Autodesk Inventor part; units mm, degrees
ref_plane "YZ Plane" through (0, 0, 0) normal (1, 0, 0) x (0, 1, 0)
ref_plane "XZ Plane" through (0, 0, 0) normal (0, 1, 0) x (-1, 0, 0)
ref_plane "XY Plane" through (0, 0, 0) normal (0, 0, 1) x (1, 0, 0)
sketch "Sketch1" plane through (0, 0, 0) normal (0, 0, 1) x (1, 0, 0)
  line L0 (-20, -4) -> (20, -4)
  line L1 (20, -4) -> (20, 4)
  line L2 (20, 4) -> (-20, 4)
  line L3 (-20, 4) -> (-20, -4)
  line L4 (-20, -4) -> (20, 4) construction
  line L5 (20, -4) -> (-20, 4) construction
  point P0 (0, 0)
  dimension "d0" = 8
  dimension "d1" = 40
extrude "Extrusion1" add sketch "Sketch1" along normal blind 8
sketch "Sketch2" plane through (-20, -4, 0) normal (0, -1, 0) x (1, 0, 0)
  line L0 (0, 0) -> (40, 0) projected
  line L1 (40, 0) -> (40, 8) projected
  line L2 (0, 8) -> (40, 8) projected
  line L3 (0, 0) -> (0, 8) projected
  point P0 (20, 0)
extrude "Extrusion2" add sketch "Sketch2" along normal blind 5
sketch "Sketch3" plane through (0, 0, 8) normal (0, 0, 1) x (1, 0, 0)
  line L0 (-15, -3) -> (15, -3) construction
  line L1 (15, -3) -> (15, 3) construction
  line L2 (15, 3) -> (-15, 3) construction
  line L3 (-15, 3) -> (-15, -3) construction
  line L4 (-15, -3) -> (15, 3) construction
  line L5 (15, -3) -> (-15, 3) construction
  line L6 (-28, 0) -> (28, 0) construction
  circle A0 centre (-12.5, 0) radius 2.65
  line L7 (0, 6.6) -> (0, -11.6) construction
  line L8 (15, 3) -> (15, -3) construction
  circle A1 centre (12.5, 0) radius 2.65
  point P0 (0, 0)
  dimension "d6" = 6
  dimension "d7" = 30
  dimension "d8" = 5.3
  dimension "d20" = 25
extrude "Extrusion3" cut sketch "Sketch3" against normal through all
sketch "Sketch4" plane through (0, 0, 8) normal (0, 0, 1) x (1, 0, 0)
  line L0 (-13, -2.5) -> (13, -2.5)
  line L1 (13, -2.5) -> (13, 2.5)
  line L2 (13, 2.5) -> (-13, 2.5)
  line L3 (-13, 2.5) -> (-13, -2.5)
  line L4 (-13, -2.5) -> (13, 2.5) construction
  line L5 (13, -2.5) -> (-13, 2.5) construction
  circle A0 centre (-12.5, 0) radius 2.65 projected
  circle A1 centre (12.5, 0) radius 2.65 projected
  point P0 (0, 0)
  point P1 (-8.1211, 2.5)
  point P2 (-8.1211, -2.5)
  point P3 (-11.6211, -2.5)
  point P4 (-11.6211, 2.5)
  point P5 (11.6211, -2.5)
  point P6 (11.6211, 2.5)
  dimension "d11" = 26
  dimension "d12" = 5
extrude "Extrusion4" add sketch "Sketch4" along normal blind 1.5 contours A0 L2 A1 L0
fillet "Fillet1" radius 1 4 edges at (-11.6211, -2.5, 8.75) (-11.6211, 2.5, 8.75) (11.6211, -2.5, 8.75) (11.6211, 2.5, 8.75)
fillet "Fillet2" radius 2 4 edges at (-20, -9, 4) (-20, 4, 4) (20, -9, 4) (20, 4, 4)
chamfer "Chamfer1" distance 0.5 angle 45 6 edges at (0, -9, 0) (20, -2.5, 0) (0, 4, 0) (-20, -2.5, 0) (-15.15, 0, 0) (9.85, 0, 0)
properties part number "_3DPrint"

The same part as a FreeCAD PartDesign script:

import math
import FreeCAD as App
import Part
import Sketcher
from FreeCAD import Vector
Q = App.Units.Quantity


def edges_at(feature, points):
    """Names of the edges that pass closest to the given points."""
    edges = feature.Shape.Edges
    near = lambda p: min(range(len(edges)), key=lambda i: edges[i].distToShape(Part.Vertex(*p))[0])
    return sorted({f"Edge{near(p) + 1}" for p in points})


def add_polygon(sketch, points):
    """Adds a closed chain of lines whose ends are joined by coincident constraints."""
    first, n = sketch.GeometryCount, len(points)
    for a, b in zip(points, points[1:] + points[:1]):
        sketch.addGeometry(Part.LineSegment(App.Vector(*a, 0), App.Vector(*b, 0)), False)
    for i in range(n):
        sketch.addConstraint(Sketcher.Constraint("Coincident", first + i, 2, first + (i + 1) % n, 1))

doc = App.newDocument("Part")
body = doc.addObject("PartDesign::Body", "Body")

# Sketch on XY plane
sketch1 = doc.addObject("Sketcher::SketchObject", "Sketch")
body.addObject(sketch1)
sketch1.AttachmentSupport = (doc.XY_Plane, [""])
sketch1.MapMode = "FlatFace"
add_polygon(sketch1, [(-20, 4), (-20, -4), (20, -4), (20, 4)])  # lines 0-3
sketch1.addConstraint(Sketcher.Constraint("Vertical", 0))
sketch1.addConstraint(Sketcher.Constraint("Horizontal", 1))
sketch1.addConstraint(Sketcher.Constraint("Vertical", 2))
sketch1.addConstraint(Sketcher.Constraint("Horizontal", 3))
sketch1.addConstraint(Sketcher.Constraint("Symmetric", 0, 2, 2, 2, -1, 1))
sketch1.addConstraint(Sketcher.Constraint("DistanceX", 1, 1, 1, 2, Q("40 mm")))
sketch1.addConstraint(Sketcher.Constraint("DistanceY", 0, 2, 0, 1, Q("8 mm")))
pad1 = doc.addObject("PartDesign::Pad", "Pad")
body.addObject(pad1)
pad1.Profile = sketch1
pad1.Length = 8

# Sketch on XZ plane
sketch2 = doc.addObject("Sketcher::SketchObject", "Sketch001")
body.addObject(sketch2)
sketch2.AttachmentSupport = (doc.XZ_Plane, [""])
sketch2.MapMode = "FlatFace"
sketch2.AttachmentOffset = App.Placement(Vector(0, 0, 4), App.Rotation())
add_polygon(sketch2, [(-20, 8), (-20, 0), (20, 0), (20, 8)])  # lines 0-3
sketch2.addConstraint(Sketcher.Constraint("Vertical", 0))
sketch2.addConstraint(Sketcher.Constraint("Horizontal", 1))
sketch2.addConstraint(Sketcher.Constraint("Vertical", 2))
sketch2.addConstraint(Sketcher.Constraint("Horizontal", 3))
sketch2.addConstraint(Sketcher.Constraint("Symmetric", 0, 2, 1, 2, -1, 1))
sketch2.addConstraint(Sketcher.Constraint("DistanceX", 1, 1, 1, 2, Q("40 mm")))
sketch2.addConstraint(Sketcher.Constraint("DistanceY", 0, 2, 0, 1, Q("8 mm")))
pad2 = doc.addObject("PartDesign::Pad", "Pad001")
body.addObject(pad2)
pad2.Profile = sketch2
pad2.Length = 5

# Sketch on XY plane
sketch3 = doc.addObject("Sketcher::SketchObject", "Sketch002")
body.addObject(sketch3)
sketch3.AttachmentSupport = (doc.XY_Plane, [""])
sketch3.MapMode = "FlatFace"
sketch3.AttachmentOffset = App.Placement(Vector(0, 0, 8), App.Rotation())
sketch3.addGeometry(Part.Circle(Vector(-12.5, 0, 0), Vector(0, 0, 1), 2.6), False)
sketch3.addGeometry(Part.Circle(Vector(12.5, 0, 0), Vector(0, 0, 1), 2.6), False)
sketch3.addConstraint(Sketcher.Constraint("Equal", 0, 1))
sketch3.addConstraint(Sketcher.Constraint("Symmetric", 0, 3, 1, 3, -1, 1))
sketch3.addConstraint(Sketcher.Constraint("PointOnObject", 0, 3, -1))
sketch3.addConstraint(Sketcher.Constraint("Diameter", 0, Q("5.3 mm")))
sketch3.addConstraint(Sketcher.Constraint("DistanceX", 0, 3, 1, 3, Q("25 mm")))
pocket1 = doc.addObject("PartDesign::Pocket", "Pocket")
body.addObject(pocket1)
pocket1.Profile = sketch3
pocket1.Type = "ThroughAll"

# Sketch on XY plane
sketch4 = doc.addObject("Sketcher::SketchObject", "Sketch003")
body.addObject(sketch4)
sketch4.AttachmentSupport = (doc.XY_Plane, [""])
sketch4.MapMode = "FlatFace"
sketch4.AttachmentOffset = App.Placement(Vector(0, 0, 8), App.Rotation())
sketch4.addGeometry(Part.ArcOfCircle(Part.Circle(Vector(-12.5, 0, 0), Vector(0, 0, 1), 2.6), math.radians(-71), math.radians(71)), False)
sketch4.addGeometry(Part.LineSegment(Vector(-11.6, -2.5, 0), Vector(11.6, -2.5, 0)), False)
sketch4.addGeometry(Part.ArcOfCircle(Part.Circle(Vector(12.5, 0, 0), Vector(0, 0, 1), 2.6), math.radians(109), math.radians(251)), False)
sketch4.addGeometry(Part.LineSegment(Vector(11.6, 2.5, 0), Vector(-11.6, 2.5, 0)), False)
sketch4.addConstraint(Sketcher.Constraint("Coincident", 0, 1, 1, 1))
sketch4.addConstraint(Sketcher.Constraint("Coincident", 1, 2, 2, 2))
sketch4.addConstraint(Sketcher.Constraint("Coincident", 2, 1, 3, 1))
sketch4.addConstraint(Sketcher.Constraint("Coincident", 3, 2, 0, 2))
sketch4.addConstraint(Sketcher.Constraint("Horizontal", 1))
sketch4.addConstraint(Sketcher.Constraint("Horizontal", 3))
sketch4.addConstraint(Sketcher.Constraint("Equal", 0, 2))
sketch4.addConstraint(Sketcher.Constraint("Symmetric", 0, 3, 2, 3, -1, 1))
sketch4.addConstraint(Sketcher.Constraint("Symmetric", 1, 2, 2, 1, -1))
sketch4.addConstraint(Sketcher.Constraint("DistanceY", 1, 2, 2, 1, Q("5 mm")))
sketch4.addConstraint(Sketcher.Constraint("Radius", 0, Q("2.65 mm")))
sketch4.addConstraint(Sketcher.Constraint("DistanceX", 0, 3, 2, 3, Q("25 mm")))
pad3 = doc.addObject("PartDesign::Pad", "Pad002")
body.addObject(pad3)
pad3.Profile = sketch4
pad3.Length = 1.5
doc.recompute()

fillet = doc.addObject("PartDesign::Fillet", "Fillet")
body.addObject(fillet)
fillet.Base = (pad3, edges_at(pad3, [
    (-11.621, -2.5, 8.75),
    (-11.621, 2.5, 8.75),
    (11.621, -2.5, 8.75),
    (11.621, 2.5, 8.75),
]))
fillet.Radius = 1
doc.recompute()

fillet2 = doc.addObject("PartDesign::Fillet", "Fillet001")
body.addObject(fillet2)
fillet2.Base = (fillet, edges_at(fillet, [
    (-20, -9, 4),
    (-20, 4, 4),
    (20, -9, 4),
    (20, 4, 4),
]))
fillet2.Radius = 2
doc.recompute()

chamfer = doc.addObject("PartDesign::Chamfer", "Chamfer")
body.addObject(chamfer)
chamfer.Base = (fillet2, edges_at(fillet2, [
    (0, -9, 0),
    (20, -2.5, 0),
    (0, 4, 0),
    (-20, -2.5, 0),
    (-15.15, 0, 0),
    (9.85, 0, 0),
]))
chamfer.Size = 0.5

doc.recompute()
